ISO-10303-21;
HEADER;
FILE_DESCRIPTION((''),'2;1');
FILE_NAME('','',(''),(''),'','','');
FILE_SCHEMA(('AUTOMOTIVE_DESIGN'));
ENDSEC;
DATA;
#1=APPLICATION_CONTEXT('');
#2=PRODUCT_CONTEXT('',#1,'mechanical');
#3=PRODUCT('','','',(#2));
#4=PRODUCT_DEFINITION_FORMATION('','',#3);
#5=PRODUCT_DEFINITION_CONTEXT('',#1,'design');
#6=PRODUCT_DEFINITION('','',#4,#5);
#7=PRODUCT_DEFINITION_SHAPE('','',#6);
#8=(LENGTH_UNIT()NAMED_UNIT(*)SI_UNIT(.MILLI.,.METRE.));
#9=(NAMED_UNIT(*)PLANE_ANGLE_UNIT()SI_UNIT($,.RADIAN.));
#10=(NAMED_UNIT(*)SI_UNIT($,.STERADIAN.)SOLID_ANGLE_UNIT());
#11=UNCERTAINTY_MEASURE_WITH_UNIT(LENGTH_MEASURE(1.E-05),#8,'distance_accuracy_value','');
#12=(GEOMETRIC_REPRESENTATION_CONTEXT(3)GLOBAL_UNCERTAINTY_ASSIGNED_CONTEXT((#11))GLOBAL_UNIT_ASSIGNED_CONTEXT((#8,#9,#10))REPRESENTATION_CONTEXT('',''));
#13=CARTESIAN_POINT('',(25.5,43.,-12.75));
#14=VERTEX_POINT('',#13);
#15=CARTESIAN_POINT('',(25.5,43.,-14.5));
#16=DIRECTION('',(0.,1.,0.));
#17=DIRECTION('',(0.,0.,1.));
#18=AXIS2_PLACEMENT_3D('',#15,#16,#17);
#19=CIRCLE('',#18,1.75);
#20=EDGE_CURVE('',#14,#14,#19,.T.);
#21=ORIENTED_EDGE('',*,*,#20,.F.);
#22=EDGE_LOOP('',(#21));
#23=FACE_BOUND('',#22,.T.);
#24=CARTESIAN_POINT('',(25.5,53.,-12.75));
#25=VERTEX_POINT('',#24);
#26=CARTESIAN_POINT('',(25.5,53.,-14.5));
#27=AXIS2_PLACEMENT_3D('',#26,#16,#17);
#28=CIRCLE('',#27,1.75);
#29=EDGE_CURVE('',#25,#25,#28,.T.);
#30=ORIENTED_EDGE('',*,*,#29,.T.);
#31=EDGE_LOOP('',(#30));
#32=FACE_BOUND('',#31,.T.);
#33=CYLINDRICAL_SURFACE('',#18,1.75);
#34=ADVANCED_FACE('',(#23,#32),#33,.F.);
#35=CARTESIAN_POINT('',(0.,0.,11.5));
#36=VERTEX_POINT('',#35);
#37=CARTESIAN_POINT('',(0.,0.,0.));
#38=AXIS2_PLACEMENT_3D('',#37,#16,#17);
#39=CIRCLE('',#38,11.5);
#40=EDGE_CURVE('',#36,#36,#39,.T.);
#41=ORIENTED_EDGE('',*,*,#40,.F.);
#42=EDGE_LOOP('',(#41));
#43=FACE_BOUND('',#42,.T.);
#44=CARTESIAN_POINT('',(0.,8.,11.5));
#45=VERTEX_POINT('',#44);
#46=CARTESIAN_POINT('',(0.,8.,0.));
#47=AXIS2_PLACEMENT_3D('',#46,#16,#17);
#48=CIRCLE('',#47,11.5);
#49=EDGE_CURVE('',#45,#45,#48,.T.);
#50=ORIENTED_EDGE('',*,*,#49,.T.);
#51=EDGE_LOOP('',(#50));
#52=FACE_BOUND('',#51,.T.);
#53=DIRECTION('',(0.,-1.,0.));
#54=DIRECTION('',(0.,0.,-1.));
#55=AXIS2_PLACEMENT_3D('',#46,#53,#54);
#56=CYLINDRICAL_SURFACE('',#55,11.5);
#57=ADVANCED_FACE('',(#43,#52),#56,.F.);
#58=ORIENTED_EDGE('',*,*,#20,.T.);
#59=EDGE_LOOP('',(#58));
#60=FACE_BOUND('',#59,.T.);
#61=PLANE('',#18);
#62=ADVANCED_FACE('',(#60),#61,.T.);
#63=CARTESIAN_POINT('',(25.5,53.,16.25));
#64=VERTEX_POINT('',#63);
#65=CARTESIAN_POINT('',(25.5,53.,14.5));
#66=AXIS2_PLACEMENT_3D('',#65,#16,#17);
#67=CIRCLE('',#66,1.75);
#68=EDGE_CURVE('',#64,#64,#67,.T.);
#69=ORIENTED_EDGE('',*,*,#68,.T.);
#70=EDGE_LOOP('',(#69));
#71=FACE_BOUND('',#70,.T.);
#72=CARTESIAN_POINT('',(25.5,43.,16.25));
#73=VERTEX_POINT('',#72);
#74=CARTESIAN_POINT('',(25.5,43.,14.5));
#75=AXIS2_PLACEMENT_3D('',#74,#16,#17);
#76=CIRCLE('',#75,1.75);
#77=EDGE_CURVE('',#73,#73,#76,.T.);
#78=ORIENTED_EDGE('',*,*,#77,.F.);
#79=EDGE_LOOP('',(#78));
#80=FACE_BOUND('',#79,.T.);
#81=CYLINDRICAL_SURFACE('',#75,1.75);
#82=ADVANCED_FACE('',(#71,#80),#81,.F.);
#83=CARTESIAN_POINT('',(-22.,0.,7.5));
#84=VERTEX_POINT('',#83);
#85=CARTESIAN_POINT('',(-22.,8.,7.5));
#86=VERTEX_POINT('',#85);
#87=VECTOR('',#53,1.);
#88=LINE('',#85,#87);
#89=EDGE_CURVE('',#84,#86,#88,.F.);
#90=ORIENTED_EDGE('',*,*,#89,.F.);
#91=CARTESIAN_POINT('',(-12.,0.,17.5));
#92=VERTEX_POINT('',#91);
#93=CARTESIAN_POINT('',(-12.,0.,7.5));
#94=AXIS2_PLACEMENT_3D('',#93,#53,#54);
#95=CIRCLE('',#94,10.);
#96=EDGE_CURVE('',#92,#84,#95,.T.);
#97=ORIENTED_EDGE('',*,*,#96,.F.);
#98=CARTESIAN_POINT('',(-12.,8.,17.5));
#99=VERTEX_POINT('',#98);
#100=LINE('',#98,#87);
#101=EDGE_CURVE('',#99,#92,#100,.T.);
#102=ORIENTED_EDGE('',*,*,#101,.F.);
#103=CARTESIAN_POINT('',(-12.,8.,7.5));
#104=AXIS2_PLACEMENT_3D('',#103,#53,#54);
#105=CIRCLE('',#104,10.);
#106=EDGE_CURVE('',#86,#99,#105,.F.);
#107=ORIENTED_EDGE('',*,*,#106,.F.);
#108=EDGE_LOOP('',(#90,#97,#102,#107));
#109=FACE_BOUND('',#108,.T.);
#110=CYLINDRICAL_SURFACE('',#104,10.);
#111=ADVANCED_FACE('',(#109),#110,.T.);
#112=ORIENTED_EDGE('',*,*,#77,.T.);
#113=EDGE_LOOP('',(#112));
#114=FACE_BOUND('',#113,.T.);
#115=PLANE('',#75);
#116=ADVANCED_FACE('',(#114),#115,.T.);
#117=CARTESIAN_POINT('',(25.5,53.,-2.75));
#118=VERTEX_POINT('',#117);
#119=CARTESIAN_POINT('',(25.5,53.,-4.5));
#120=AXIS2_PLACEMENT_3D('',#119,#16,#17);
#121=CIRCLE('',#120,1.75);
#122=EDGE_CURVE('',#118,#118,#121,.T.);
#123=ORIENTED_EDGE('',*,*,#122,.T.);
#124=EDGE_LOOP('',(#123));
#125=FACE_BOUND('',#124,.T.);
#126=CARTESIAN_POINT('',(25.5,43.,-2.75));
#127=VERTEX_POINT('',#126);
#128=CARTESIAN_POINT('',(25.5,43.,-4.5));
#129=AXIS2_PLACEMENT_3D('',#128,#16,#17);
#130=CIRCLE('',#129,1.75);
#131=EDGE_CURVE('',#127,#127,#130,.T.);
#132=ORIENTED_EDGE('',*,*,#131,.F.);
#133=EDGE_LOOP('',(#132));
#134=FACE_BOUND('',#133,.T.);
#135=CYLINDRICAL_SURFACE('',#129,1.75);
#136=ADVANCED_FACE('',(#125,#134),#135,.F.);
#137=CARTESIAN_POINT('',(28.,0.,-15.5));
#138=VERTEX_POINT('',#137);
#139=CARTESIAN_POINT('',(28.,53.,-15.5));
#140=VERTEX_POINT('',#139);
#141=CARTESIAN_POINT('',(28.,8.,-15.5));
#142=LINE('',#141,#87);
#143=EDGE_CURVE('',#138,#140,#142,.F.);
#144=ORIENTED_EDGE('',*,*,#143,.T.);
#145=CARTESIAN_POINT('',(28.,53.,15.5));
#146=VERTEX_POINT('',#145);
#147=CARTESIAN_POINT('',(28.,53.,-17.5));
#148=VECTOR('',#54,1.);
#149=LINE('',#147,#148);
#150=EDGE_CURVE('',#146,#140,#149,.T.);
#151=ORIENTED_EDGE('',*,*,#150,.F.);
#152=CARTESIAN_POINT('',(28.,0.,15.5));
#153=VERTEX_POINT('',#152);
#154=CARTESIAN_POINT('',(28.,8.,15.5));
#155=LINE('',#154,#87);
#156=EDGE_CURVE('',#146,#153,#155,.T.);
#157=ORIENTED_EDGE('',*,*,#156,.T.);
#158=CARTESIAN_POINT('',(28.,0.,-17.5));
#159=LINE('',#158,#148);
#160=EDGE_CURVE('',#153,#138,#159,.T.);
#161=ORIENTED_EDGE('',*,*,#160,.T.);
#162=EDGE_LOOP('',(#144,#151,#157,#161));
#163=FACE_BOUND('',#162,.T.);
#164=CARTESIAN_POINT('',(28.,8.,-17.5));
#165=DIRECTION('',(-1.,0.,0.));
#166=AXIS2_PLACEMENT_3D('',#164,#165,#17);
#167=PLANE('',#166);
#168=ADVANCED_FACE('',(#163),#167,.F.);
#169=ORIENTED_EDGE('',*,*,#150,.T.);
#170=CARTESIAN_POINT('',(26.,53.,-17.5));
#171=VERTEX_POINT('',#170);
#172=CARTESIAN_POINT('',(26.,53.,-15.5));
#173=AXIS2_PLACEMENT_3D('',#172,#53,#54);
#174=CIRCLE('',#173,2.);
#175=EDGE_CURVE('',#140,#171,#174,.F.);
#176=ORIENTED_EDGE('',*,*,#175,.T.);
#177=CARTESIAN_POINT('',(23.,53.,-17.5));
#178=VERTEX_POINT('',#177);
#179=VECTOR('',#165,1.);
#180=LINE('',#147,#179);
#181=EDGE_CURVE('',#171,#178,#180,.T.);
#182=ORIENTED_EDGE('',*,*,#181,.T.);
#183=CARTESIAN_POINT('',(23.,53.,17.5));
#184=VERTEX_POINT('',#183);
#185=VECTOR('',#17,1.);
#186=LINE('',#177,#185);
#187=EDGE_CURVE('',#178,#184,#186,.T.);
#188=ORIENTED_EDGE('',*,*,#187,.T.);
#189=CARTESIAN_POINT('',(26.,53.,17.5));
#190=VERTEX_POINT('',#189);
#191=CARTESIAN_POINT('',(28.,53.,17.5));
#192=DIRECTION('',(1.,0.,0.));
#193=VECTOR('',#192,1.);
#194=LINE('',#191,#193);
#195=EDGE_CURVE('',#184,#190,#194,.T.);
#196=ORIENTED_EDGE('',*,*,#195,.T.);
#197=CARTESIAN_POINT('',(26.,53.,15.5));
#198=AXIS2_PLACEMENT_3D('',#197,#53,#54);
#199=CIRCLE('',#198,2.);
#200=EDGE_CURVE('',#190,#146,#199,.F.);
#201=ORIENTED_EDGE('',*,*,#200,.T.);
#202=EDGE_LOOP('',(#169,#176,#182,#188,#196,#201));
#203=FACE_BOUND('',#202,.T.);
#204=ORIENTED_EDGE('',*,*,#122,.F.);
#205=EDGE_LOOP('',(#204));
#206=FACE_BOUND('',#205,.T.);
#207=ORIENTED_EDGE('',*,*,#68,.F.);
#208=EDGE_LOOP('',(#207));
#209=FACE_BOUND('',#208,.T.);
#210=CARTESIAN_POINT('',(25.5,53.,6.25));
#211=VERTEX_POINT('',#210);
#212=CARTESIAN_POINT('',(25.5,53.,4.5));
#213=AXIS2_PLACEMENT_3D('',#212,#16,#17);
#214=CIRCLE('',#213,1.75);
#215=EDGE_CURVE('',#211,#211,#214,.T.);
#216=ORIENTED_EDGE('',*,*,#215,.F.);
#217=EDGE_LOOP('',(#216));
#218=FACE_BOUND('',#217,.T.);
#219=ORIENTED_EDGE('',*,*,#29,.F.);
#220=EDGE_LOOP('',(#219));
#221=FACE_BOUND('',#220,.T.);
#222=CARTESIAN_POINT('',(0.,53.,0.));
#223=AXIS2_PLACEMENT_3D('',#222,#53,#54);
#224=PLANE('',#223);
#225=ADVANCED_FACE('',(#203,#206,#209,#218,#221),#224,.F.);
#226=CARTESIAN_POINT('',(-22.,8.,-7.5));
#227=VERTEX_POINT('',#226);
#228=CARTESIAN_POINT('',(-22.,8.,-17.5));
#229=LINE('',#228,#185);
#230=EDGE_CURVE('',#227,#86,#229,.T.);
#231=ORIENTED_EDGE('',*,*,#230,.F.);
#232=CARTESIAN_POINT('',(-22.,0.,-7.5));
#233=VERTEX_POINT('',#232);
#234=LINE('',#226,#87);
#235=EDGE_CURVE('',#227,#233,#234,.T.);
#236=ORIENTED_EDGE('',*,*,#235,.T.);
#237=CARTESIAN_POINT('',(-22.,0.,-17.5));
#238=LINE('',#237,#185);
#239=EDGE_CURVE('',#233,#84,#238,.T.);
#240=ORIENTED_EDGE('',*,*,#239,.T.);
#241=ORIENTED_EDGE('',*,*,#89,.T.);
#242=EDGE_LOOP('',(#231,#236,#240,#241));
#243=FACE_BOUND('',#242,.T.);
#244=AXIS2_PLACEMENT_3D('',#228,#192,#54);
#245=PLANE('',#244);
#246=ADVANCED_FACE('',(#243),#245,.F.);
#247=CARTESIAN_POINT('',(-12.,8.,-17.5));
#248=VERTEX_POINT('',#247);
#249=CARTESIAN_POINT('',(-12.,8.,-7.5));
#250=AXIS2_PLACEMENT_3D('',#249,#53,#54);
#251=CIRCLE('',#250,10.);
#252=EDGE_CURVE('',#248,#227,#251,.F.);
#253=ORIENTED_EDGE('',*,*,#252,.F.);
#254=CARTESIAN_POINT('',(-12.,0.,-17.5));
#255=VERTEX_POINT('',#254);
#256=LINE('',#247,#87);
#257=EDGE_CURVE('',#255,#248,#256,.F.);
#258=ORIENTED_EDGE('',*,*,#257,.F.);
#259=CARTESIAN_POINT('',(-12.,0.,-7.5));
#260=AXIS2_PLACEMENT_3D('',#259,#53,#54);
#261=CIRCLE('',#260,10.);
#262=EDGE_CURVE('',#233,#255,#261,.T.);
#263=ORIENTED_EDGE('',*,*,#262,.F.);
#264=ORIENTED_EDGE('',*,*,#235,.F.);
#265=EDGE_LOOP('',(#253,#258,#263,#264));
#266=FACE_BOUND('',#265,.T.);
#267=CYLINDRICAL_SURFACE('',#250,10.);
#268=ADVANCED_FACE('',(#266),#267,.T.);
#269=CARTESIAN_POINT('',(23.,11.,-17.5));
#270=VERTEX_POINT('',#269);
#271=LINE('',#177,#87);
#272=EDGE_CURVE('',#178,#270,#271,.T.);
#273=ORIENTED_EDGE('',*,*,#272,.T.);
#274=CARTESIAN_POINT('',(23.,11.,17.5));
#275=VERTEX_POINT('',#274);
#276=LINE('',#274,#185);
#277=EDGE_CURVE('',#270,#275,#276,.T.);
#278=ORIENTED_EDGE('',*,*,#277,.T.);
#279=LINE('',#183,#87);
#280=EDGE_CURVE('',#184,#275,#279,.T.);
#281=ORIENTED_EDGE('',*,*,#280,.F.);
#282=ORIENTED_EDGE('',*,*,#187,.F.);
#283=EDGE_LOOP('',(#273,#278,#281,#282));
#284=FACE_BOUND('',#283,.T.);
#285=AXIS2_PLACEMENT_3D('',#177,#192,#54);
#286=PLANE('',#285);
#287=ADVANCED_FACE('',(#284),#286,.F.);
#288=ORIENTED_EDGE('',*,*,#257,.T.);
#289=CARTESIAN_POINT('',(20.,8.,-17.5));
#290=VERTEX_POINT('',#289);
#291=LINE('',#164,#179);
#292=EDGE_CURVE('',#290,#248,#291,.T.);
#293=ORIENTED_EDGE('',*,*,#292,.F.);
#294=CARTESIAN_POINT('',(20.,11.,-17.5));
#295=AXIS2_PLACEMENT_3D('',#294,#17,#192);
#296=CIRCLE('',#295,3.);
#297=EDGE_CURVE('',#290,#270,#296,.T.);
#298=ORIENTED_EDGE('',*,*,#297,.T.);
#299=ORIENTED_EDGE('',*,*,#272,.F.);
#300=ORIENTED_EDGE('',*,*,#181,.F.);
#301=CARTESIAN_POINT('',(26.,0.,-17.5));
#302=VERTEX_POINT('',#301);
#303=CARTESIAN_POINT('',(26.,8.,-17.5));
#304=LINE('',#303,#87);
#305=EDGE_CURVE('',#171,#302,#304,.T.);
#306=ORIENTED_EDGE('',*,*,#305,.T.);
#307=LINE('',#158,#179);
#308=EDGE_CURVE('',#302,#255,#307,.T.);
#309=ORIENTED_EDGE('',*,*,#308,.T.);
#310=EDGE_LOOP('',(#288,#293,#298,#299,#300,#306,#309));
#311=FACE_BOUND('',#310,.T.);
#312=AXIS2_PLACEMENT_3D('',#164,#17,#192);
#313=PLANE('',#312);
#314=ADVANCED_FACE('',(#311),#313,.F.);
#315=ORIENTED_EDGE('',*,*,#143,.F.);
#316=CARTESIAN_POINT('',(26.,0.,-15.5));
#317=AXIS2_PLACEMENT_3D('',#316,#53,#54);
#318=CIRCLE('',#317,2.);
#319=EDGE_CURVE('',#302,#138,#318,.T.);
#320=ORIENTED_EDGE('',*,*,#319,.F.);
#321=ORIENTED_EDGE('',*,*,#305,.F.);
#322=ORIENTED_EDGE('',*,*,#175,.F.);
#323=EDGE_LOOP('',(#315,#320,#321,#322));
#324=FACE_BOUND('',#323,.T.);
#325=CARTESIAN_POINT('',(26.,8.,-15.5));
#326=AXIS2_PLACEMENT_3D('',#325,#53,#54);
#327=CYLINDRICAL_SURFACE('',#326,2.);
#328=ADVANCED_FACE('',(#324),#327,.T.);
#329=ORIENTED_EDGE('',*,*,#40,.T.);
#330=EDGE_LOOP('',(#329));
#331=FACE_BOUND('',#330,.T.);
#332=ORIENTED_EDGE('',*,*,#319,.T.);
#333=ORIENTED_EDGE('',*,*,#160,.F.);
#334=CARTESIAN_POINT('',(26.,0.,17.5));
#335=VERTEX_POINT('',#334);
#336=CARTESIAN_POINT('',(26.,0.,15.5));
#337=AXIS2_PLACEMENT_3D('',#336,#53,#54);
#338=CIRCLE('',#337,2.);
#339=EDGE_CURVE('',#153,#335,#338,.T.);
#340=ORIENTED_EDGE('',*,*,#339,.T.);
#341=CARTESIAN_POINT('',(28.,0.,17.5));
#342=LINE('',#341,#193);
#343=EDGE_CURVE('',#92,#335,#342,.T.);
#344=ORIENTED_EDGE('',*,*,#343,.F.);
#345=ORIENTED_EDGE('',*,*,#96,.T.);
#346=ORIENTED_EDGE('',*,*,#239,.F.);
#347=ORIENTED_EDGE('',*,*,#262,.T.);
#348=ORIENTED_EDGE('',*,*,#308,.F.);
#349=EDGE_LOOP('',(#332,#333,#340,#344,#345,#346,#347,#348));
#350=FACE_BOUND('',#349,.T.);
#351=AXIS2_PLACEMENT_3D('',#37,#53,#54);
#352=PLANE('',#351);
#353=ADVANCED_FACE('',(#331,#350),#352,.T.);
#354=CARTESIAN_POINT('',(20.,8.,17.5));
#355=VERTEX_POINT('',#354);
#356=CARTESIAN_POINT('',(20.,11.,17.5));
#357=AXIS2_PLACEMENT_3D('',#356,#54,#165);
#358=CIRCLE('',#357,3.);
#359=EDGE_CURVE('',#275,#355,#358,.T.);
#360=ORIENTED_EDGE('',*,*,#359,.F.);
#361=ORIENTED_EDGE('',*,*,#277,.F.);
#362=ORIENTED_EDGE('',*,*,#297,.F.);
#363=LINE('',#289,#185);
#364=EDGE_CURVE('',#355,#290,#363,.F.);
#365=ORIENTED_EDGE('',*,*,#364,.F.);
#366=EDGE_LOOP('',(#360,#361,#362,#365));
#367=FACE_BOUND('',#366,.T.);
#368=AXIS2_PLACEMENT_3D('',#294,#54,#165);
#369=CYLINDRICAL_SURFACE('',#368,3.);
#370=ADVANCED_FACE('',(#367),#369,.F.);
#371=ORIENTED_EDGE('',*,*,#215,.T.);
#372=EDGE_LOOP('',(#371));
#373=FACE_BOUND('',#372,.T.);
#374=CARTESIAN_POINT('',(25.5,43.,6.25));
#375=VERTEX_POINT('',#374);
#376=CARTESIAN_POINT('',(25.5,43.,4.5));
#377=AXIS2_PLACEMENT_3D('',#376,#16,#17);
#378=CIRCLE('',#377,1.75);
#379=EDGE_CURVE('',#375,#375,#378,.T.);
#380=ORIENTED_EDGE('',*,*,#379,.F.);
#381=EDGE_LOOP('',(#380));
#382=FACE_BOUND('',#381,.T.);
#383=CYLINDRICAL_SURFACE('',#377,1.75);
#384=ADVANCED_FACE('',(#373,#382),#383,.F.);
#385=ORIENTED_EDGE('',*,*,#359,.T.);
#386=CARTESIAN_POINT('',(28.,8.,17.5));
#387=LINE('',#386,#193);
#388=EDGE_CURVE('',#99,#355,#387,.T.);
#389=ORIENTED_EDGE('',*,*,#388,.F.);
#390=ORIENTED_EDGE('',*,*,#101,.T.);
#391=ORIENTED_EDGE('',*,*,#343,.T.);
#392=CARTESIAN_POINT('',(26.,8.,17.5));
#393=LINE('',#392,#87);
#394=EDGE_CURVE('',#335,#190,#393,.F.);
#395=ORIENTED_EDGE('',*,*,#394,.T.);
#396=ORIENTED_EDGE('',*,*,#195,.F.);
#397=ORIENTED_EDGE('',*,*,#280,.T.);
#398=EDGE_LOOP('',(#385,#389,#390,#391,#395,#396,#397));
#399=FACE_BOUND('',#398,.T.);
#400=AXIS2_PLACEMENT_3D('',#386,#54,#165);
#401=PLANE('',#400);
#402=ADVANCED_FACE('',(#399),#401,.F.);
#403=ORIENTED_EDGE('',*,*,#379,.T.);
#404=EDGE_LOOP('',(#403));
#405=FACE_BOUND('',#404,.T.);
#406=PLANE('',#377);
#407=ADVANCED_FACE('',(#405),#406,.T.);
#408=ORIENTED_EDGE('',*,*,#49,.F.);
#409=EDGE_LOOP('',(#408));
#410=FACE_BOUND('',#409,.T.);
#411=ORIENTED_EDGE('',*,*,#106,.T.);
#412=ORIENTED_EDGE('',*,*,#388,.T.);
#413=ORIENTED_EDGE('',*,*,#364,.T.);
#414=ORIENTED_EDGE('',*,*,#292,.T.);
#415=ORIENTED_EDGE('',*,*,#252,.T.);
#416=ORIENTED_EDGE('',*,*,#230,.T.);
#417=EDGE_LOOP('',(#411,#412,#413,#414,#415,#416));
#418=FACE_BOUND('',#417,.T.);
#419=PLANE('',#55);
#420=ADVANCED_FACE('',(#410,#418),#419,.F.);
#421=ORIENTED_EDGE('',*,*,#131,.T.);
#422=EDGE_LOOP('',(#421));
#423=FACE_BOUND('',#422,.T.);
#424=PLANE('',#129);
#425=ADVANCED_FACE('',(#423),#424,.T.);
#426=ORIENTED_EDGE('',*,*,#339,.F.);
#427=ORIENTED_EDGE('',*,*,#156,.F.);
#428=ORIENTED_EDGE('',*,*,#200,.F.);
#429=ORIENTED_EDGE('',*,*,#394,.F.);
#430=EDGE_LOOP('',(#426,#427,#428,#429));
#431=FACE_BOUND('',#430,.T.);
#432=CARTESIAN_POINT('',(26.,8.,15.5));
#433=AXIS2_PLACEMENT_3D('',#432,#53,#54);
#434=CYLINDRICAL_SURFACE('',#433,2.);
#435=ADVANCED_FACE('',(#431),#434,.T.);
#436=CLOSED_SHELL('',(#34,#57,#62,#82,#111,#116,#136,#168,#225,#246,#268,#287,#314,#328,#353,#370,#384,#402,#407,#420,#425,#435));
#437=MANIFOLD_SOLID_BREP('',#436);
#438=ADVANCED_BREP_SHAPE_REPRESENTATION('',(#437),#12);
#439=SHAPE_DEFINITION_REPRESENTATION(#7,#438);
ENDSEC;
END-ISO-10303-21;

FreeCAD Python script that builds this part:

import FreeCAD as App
import Part
import Sketcher
Q = App.Units.Quantity


def edges_at(feature, points):
    """Names of the edges that pass closest to the given points."""
    edges = feature.Shape.Edges
    near = lambda p: min(range(len(edges)), key=lambda i: edges[i].distToShape(Part.Vertex(*p))[0])
    return sorted({f"Edge{near(p) + 1}" for p in points})


def add_polygon(sketch, points):
    """Adds a closed chain of lines whose ends are joined by coincident constraints."""
    first, n = sketch.GeometryCount, len(points)
    for a, b in zip(points, points[1:] + points[:1]):
        sketch.addGeometry(Part.LineSegment(App.Vector(*a, 0), App.Vector(*b, 0)), False)
    for i in range(n):
        sketch.addConstraint(Sketcher.Constraint("Coincident", first + i, 2, first + (i + 1) % n, 1))

doc = App.newDocument("Part")
params = doc.addObject("Spreadsheet::Sheet", "Params")
for row, (alias, value) in enumerate([
    ("sketch1_diameter", "23 mm"),
    ("sketch1_width", "50 mm"),
    ("sketch1_height", "35 mm"),
    ("pad1_length", "8 mm"),
    ("sketch2_width", "5 mm"),
    ("sketch2_height", "35 mm"),
    ("pad2_length", "45 mm"),
    ("fillet_radius", "3 mm"),
    ("sketch3_diameter", "3.5 mm"),
    ("pocket1_length", "10 mm"),
    ("fillet2_radius", "10 mm"),
    ("fillet3_radius", "2 mm"),
], start=1):
    params.set(f"A{row}", alias)
    params.set(f"B{row}", "=" + value)
    params.setAlias(f"B{row}", alias)

body = doc.addObject("PartDesign::Body", "Body")

sketch1 = body.newObject("Sketcher::SketchObject", "Sketch")
sketch1.AttachmentSupport = (doc.getObject("XZ_Plane"), [""])
sketch1.MapMode = "FlatFace"
add_polygon(sketch1, [(-22, -17.5), (-22, 17.5), (28, 17.5), (28, -17.5)])
sketch1.addGeometry(Part.Circle(App.Vector(0, 0, 0), App.Vector(0, 0, 1), 11.5), False)
sketch1.addConstraint([
    Sketcher.Constraint("Vertical", 0),
    Sketcher.Constraint("Horizontal", 1),
    Sketcher.Constraint("Vertical", 2),
    Sketcher.Constraint("Horizontal", 3),
    Sketcher.Constraint("Coincident", 4, 3, -1, 1),
    Sketcher.Constraint("Diameter", 4, Q("23 mm")),
    Sketcher.Constraint("DistanceX", 1, 1, 1, 2, Q("50 mm")),
    Sketcher.Constraint("DistanceY", 0, 1, 0, 2, Q("35 mm")),
    Sketcher.Constraint("DistanceX", 0, 2, -1, 1, Q("22 mm")),
    Sketcher.Constraint("DistanceY", -1, 1, 0, 2, Q("17.5 mm")),
])
sketch1.setExpression("Constraints[9]", "Params.sketch1_diameter")
sketch1.setExpression("Constraints[10]", "Params.sketch1_width")
sketch1.setExpression("Constraints[11]", "Params.sketch1_height")
pad1 = body.newObject("PartDesign::Pad", "Pad")
pad1.Profile = sketch1
pad1.setExpression("Length", "Params.pad1_length")
pad1.Reversed = True

sketch2 = body.newObject("Sketcher::SketchObject", "Sketch001")
sketch2.AttachmentSupport = (doc.getObject("XZ_Plane"), [""])
sketch2.MapMode = "FlatFace"
sketch2.AttachmentOffset = App.Placement(App.Vector(0, 0, -8), App.Rotation())
add_polygon(sketch2, [(23, -17.5), (23, 17.5), (28, 17.5), (28, -17.5)])
sketch2.addConstraint([
    Sketcher.Constraint("Vertical", 0),
    Sketcher.Constraint("Horizontal", 1),
    Sketcher.Constraint("Vertical", 2),
    Sketcher.Constraint("Horizontal", 3),
    Sketcher.Constraint("DistanceX", 1, 1, 1, 2, Q("5 mm")),
    Sketcher.Constraint("DistanceY", 0, 1, 0, 2, Q("35 mm")),
    Sketcher.Constraint("DistanceX", -1, 1, 0, 2, Q("23 mm")),
    Sketcher.Constraint("DistanceY", -1, 1, 0, 2, Q("17.5 mm")),
])
sketch2.setExpression("Constraints[8]", "Params.sketch2_width")
sketch2.setExpression("Constraints[9]", "Params.sketch2_height")
pad2 = body.newObject("PartDesign::Pad", "Pad001")
pad2.Profile = sketch2
pad2.setExpression("Length", "Params.pad2_length")
pad2.Reversed = True
doc.recompute()

fillet = body.newObject("PartDesign::Fillet", "Fillet")
fillet.Base = (pad2, edges_at(pad2, [(23, 8, 0)]))
fillet.setExpression("Radius", "Params.fillet_radius")

sketch3 = body.newObject("Sketcher::SketchObject", "Sketch002")
sketch3.AttachmentSupport = (doc.getObject("XZ_Plane"), [""])
sketch3.MapMode = "FlatFace"
sketch3.AttachmentOffset = App.Placement(App.Vector(0, 0, -53), App.Rotation())
sketch3.addGeometry([
    Part.Circle(App.Vector(25.5, -14.5, 0), App.Vector(0, 0, 1), 1.75),
    Part.Circle(App.Vector(25.5, 14.5, 0), App.Vector(0, 0, 1), 1.75),
    Part.Circle(App.Vector(25.5, -4.5, 0), App.Vector(0, 0, 1), 1.75),
    Part.Circle(App.Vector(25.5, 4.5, 0), App.Vector(0, 0, 1), 1.75),
], False)
sketch3.addConstraint([
    Sketcher.Constraint("Equal", 0, 1),
    Sketcher.Constraint("Equal", 1, 2),
    Sketcher.Constraint("Equal", 2, 3),
    Sketcher.Constraint("Symmetric", 0, 3, 1, 3, -1),
    Sketcher.Constraint("Symmetric", 2, 3, 3, 3, -1),
    Sketcher.Constraint("Vertical", 1, 3, 2, 3),
    Sketcher.Constraint("Diameter", 0, Q("3.5 mm")),
    Sketcher.Constraint("DistanceY", 0, 3, 1, 3, Q("29 mm")),
    Sketcher.Constraint("DistanceY", 0, 3, 2, 3, Q("10 mm")),
    Sketcher.Constraint("DistanceX", -1, 1, 0, 3, Q("25.5 mm")),
])
sketch3.setExpression("Constraints[6]", "Params.sketch3_diameter")
pocket1 = body.newObject("PartDesign::Pocket", "Pocket")
pocket1.Profile = sketch3
pocket1.setExpression("Length", "Params.pocket1_length")
pocket1.Reversed = True
doc.recompute()

fillet2 = body.newObject("PartDesign::Fillet", "Fillet001")
fillet2.Base = (pocket1, edges_at(pocket1, [(-22, 4, 17.5), (-22, 4, -17.5)]))
fillet2.setExpression("Radius", "Params.fillet2_radius")
doc.recompute()

fillet3 = body.newObject("PartDesign::Fillet", "Fillet002")
fillet3.Base = (fillet2, edges_at(fillet2, [(28, 26.5, 17.5), (28, 26.5, -17.5)]))
fillet3.setExpression("Radius", "Params.fillet3_radius")

doc.recompute()
